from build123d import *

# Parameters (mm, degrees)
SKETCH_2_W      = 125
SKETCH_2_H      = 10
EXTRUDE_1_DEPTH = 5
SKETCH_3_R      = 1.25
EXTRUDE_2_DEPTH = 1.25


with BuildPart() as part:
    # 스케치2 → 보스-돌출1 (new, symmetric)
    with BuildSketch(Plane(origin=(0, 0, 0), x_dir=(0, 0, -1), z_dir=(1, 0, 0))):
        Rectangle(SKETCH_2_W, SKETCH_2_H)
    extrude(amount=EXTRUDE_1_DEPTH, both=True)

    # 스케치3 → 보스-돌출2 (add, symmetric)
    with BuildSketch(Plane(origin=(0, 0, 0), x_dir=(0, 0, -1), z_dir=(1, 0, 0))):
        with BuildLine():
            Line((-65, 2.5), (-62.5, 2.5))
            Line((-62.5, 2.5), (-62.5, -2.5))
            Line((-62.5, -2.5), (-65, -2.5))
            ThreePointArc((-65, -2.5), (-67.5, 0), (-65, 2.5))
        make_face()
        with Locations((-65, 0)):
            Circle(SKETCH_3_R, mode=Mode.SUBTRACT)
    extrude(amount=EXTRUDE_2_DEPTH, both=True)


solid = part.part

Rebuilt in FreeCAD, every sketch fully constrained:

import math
import FreeCAD as App
import Part
import Sketcher


def add_polygon(sketch, points):
    """Adds a closed chain of lines whose ends are joined by coincident constraints."""
    first, n = sketch.GeometryCount, len(points)
    for a, b in zip(points, points[1:] + points[:1]):
        sketch.addGeometry(Part.LineSegment(App.Vector(*a, 0), App.Vector(*b, 0)), False)
    for i in range(n):
        sketch.addConstraint(Sketcher.Constraint("Coincident", first + i, 2, first + (i + 1) % n, 1))

doc = App.newDocument("Part")
body = doc.addObject("PartDesign::Body", "Body")

# Sketch on YZ plane
sketch1 = doc.addObject("Sketcher::SketchObject", "Sketch")
body.addObject(sketch1)
sketch1.AttachmentSupport = (doc.YZ_Plane, [""])
sketch1.MapMode = "FlatFace"
add_polygon(sketch1, [(5, 62.5), (-5, 62.5), (-5, -62.5), (5, -62.5)])  # lines 0-3
sketch1.addConstraint([
    Sketcher.Constraint("Horizontal", 0),
    Sketcher.Constraint("Vertical", 1),
    Sketcher.Constraint("Horizontal", 2),
    Sketcher.Constraint("Vertical", 3),
    Sketcher.Constraint("Symmetric", 0, 2, 2, 2, -1, 1),
    Sketcher.Constraint("DistanceX", 0, 2, 0, 1, 10.0),
    Sketcher.Constraint("DistanceY", 1, 2, 1, 1, 125.0),
])
pad1 = doc.addObject("PartDesign::Pad", "Pad")
body.addObject(pad1)
pad1.Profile = sketch1
pad1.Length = 10
pad1.Midplane = True

# Sketch on YZ plane
sketch2 = doc.addObject("Sketcher::SketchObject", "Sketch001")
body.addObject(sketch2)
sketch2.AttachmentSupport = (doc.YZ_Plane, [""])
sketch2.MapMode = "FlatFace"
sketch2.addGeometry([
    Part.LineSegment(App.Vector(2.5, 62.5, 0), App.Vector(2.5, 65, 0)),  # 0
    Part.ArcOfCircle(Part.Circle(App.Vector(0, 65, 0), App.Vector(0, 0, 1), 2.5), math.radians(0), math.radians(180)),  # 1
    Part.LineSegment(App.Vector(-2.5, 65, 0), App.Vector(-2.5, 62.5, 0)),  # 2
    Part.LineSegment(App.Vector(-2.5, 62.5, 0), App.Vector(2.5, 62.5, 0)),  # 3
    Part.Circle(App.Vector(0, 65, 0), App.Vector(0, 0, 1), 1.25),  # 4
], False)
sketch2.addConstraint([
    Sketcher.Constraint("Tangent", 0, 2, 1, 1),
    Sketcher.Constraint("Tangent", 1, 2, 2, 1),
    Sketcher.Constraint("Coincident", 2, 2, 3, 1),
    Sketcher.Constraint("Coincident", 3, 2, 0, 1),
    Sketcher.Constraint("Vertical", 0),
    Sketcher.Constraint("Vertical", 2),
    Sketcher.Constraint("Horizontal", 3),
    Sketcher.Constraint("Coincident", 4, 3, 1, 3),
    Sketcher.Constraint("PointOnObject", 1, 3, -2),
    Sketcher.Constraint("Diameter", 4, 2.5),
    Sketcher.Constraint("Radius", 1, 2.5),
    Sketcher.Constraint("DistanceY", 0, 1, 0, 2, 2.5),
    Sketcher.Constraint("DistanceY", -1, 1, 1, 3, 65.0),
])
pad2 = doc.addObject("PartDesign::Pad", "Pad001")
body.addObject(pad2)
pad2.Profile = sketch2
pad2.Length = 2.5
pad2.Midplane = True

doc.recompute()
